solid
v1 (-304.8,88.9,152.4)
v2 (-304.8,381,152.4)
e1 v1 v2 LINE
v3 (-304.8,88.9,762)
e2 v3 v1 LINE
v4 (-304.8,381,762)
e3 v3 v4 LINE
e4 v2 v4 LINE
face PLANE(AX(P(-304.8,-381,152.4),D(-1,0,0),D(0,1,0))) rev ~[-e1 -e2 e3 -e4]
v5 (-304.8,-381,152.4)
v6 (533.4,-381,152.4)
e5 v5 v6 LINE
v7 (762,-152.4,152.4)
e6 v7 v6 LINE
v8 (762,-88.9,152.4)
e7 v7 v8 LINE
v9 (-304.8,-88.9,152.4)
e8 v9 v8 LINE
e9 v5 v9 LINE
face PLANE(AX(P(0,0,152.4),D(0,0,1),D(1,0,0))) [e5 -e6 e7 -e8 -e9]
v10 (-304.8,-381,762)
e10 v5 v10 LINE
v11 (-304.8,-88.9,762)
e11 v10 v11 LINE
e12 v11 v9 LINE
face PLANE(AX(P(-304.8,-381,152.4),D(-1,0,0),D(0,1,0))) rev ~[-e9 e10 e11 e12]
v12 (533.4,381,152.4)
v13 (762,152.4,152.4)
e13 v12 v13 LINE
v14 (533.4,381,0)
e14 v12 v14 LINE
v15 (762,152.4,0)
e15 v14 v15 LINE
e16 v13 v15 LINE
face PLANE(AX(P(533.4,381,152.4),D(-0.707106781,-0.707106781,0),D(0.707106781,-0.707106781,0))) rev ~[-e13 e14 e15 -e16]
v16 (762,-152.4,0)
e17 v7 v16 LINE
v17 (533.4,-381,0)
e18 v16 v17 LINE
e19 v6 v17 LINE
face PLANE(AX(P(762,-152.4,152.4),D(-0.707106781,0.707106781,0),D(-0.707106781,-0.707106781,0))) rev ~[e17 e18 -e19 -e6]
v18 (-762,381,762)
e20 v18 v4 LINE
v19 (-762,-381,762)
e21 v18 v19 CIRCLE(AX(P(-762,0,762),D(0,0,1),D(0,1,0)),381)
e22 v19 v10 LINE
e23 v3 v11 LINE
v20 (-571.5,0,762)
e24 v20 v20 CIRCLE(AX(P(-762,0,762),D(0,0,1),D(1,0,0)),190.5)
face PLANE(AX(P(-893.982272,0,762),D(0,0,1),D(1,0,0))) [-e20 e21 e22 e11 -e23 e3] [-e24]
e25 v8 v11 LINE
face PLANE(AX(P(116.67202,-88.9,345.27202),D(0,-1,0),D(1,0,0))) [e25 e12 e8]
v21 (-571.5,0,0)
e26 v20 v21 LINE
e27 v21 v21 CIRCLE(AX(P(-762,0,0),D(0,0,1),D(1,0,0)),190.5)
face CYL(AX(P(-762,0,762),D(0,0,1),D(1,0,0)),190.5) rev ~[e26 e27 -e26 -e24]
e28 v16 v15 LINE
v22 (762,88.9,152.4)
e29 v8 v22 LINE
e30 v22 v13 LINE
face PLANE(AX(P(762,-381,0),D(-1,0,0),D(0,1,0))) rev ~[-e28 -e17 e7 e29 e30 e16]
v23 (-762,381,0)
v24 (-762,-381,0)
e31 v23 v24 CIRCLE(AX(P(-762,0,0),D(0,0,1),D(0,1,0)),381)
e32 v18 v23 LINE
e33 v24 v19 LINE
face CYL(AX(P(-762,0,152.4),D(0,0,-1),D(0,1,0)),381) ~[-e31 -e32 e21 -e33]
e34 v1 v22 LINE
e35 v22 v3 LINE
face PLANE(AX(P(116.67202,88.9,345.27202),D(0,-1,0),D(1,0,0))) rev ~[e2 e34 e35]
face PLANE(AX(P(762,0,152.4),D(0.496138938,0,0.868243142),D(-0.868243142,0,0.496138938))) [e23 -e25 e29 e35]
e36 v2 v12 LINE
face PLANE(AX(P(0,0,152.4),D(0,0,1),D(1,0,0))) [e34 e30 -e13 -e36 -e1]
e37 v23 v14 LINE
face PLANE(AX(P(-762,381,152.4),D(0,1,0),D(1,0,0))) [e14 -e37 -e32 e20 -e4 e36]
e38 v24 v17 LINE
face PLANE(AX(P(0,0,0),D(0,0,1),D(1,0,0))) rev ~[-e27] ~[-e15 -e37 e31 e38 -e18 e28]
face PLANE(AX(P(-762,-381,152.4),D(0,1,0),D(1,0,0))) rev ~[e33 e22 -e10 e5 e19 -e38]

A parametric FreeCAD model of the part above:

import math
import FreeCAD as App
import Part
import Sketcher

V = App.Vector
Q = App.Units.Quantity

doc = App.newDocument("Part")
body = doc.addObject("PartDesign::Body", "Body")

# Sketch on XY plane
sketch1 = body.newObject("Sketcher::SketchObject", "Sketch")
sketch1.AttachmentSupport = (doc.getObject("XY_Plane"), [""])
sketch1.MapMode = "FlatFace"
sketch1.addGeometry(Part.LineSegment(V(-762, -381, 0), V(762, -381, 0)), False)
sketch1.addGeometry(Part.LineSegment(V(762, -381, 0), V(762, 381, 0)), False)
sketch1.addGeometry(Part.LineSegment(V(762, 381, 0), V(-762, 381, 0)), False)
sketch1.addGeometry(Part.ArcOfCircle(Part.Circle(V(-762, 0, 0), V(0, 0, 1), 381), math.radians(90), math.radians(270)), False)
sketch1.addConstraint(Sketcher.Constraint("Coincident", 0, 2, 1, 1))
sketch1.addConstraint(Sketcher.Constraint("Coincident", 1, 2, 2, 1))
sketch1.addConstraint(Sketcher.Constraint("Tangent", 2, 2, 3, 1))
sketch1.addConstraint(Sketcher.Constraint("Tangent", 3, 2, 0, 1))
sketch1.addConstraint(Sketcher.Constraint("Horizontal", 0))
sketch1.addConstraint(Sketcher.Constraint("Vertical", 1))
sketch1.addConstraint(Sketcher.Constraint("Horizontal", 2))
sketch1.addConstraint(Sketcher.Constraint("Symmetric", 0, 2, 2, 2, -1, 1))
sketch1.addConstraint(Sketcher.Constraint("Radius", 3, Q("15 in")))
sketch1.addConstraint(Sketcher.Constraint("DistanceX", 0, 1, 0, 2, Q("60 in")))
pad1 = body.newObject("PartDesign::Pad", "Pad")
pad1.Profile = sketch1
pad1.Length = Q("6 in")

# Sketch on XY plane
sketch2 = body.newObject("Sketcher::SketchObject", "Sketch001")
sketch2.AttachmentSupport = (doc.getObject("XY_Plane"), [""])
sketch2.MapMode = "FlatFace"
sketch2.AttachmentOffset = App.Placement(V(0, 0, 6 * 25.4), App.Rotation())
sketch2.addGeometry(Part.ArcOfCircle(Part.Circle(V(-762, 0, 0), V(0, 0, 1), 381), math.radians(90), math.radians(270)), False)
sketch2.addGeometry(Part.LineSegment(V(-762, -381, 0), V(-305, -381, 0)), False)
sketch2.addGeometry(Part.LineSegment(V(-305, -381, 0), V(-305, 381, 0)), False)
sketch2.addGeometry(Part.LineSegment(V(-305, 381, 0), V(-762, 381, 0)), False)
sketch2.addConstraint(Sketcher.Constraint("Tangent", 0, 2, 1, 1))
sketch2.addConstraint(Sketcher.Constraint("Coincident", 1, 2, 2, 1))
sketch2.addConstraint(Sketcher.Constraint("Coincident", 2, 2, 3, 1))
sketch2.addConstraint(Sketcher.Constraint("Tangent", 3, 2, 0, 1))
sketch2.addConstraint(Sketcher.Constraint("Horizontal", 1))
sketch2.addConstraint(Sketcher.Constraint("Vertical", 2))
sketch2.addConstraint(Sketcher.Constraint("Horizontal", 3))
sketch2.addConstraint(Sketcher.Constraint("PointOnObject", 0, 3, -1))
sketch2.addConstraint(Sketcher.Constraint("Radius", 0, Q("15 in")))
sketch2.addConstraint(Sketcher.Constraint("DistanceX", 1, 1, 1, 2, Q("18 in")))
sketch2.addConstraint(Sketcher.Constraint("DistanceX", 0, 3, -1, 1, Q("30 in")))
pad2 = body.newObject("PartDesign::Pad", "Pad001")
pad2.Profile = sketch2
pad2.Length = Q("24 in")

# Sketch on XZ plane
sketch3 = body.newObject("Sketcher::SketchObject", "Sketch002")
sketch3.AttachmentSupport = (doc.getObject("XZ_Plane"), [""])
sketch3.MapMode = "FlatFace"
sketch3.addGeometry(Part.LineSegment(V(762, 152, 0), V(-305, 762, 0)), False)
sketch3.addGeometry(Part.LineSegment(V(-305, 762, 0), V(-305, 152, 0)), False)
sketch3.addGeometry(Part.LineSegment(V(-305, 152, 0), V(762, 152, 0)), False)
sketch3.addConstraint(Sketcher.Constraint("Coincident", 0, 2, 1, 1))
sketch3.addConstraint(Sketcher.Constraint("Coincident", 1, 2, 2, 1))
sketch3.addConstraint(Sketcher.Constraint("Coincident", 2, 2, 0, 1))
sketch3.addConstraint(Sketcher.Constraint("Vertical", 1))
sketch3.addConstraint(Sketcher.Constraint("Horizontal", 2))
sketch3.addConstraint(Sketcher.Constraint("DistanceX", 2, 1, 2, 2, Q("42 in")))
sketch3.addConstraint(Sketcher.Constraint("DistanceY", 1, 2, 1, 1, Q("24 in")))
sketch3.addConstraint(Sketcher.Constraint("DistanceX", 0, 2, -1, 1, Q("12 in")))
sketch3.addConstraint(Sketcher.Constraint("DistanceY", -1, 1, 0, 2, Q("30 in")))
pad3 = body.newObject("PartDesign::Pad", "Pad002")
pad3.Profile = sketch3
pad3.Length = Q("7 in")
pad3.Midplane = True

# Sketch on XY plane
sketch4 = body.newObject("Sketcher::SketchObject", "Sketch003")
sketch4.AttachmentSupport = (doc.getObject("XY_Plane"), [""])
sketch4.MapMode = "FlatFace"
sketch4.AttachmentOffset = App.Placement(V(0, 0, 30 * 25.4), App.Rotation())
sketch4.addGeometry(Part.Circle(V(-762, 0, 0), V(0, 0, 1), 190), False)
sketch4.addConstraint(Sketcher.Constraint("PointOnObject", 0, 3, -1))
sketch4.addConstraint(Sketcher.Constraint("Diameter", 0, Q("15 in")))
sketch4.addConstraint(Sketcher.Constraint("DistanceX", 0, 3, -1, 1, Q("30 in")))
pocket1 = body.newObject("PartDesign::Pocket", "Pocket")
pocket1.Profile = sketch4
pocket1.Length = Q("60 in")

# Sketch on XY plane
sketch5 = body.newObject("Sketcher::SketchObject", "Sketch004")
sketch5.AttachmentSupport = (doc.getObject("XY_Plane"), [""])
sketch5.MapMode = "FlatFace"
sketch5.AttachmentOffset = App.Placement(V(0, 0, 6 * 25.4), App.Rotation())
sketch5.addGeometry(Part.LineSegment(V(762, 381, 0), V(533, 381, 0)), False)
sketch5.addGeometry(Part.LineSegment(V(533, 381, 0), V(762, 152, 0)), False)
sketch5.addGeometry(Part.LineSegment(V(762, 152, 0), V(762, 381, 0)), False)
sketch5.addGeometry(Part.LineSegment(V(762, -381, 0), V(762, -152, 0)), False)
sketch5.addGeometry(Part.LineSegment(V(762, -152, 0), V(533, -381, 0)), False)
sketch5.addGeometry(Part.LineSegment(V(533, -381, 0), V(762, -381, 0)), False)
sketch5.addConstraint(Sketcher.Constraint("Coincident", 0, 2, 1, 1))
sketch5.addConstraint(Sketcher.Constraint("Coincident", 1, 2, 2, 1))
sketch5.addConstraint(Sketcher.Constraint("Coincident", 2, 2, 0, 1))
sketch5.addConstraint(Sketcher.Constraint("Coincident", 3, 2, 4, 1))
sketch5.addConstraint(Sketcher.Constraint("Coincident", 4, 2, 5, 1))
sketch5.addConstraint(Sketcher.Constraint("Coincident", 5, 2, 3, 1))
sketch5.addConstraint(Sketcher.Constraint("Horizontal", 0))
sketch5.addConstraint(Sketcher.Constraint("Vertical", 2))
sketch5.addConstraint(Sketcher.Constraint("Vertical", 3))
sketch5.addConstraint(Sketcher.Constraint("Horizontal", 5))
sketch5.addConstraint(Sketcher.Constraint("Symmetric", 1, 2, 3, 2, -1))
sketch5.addConstraint(Sketcher.Constraint("Symmetric", 0, 2, 4, 2, -1))
sketch5.addConstraint(Sketcher.Constraint("Perpendicular", 1, 4))
sketch5.addConstraint(Sketcher.Constraint("DistanceX", 0, 2, 0, 1, Q("9 in")))
sketch5.addConstraint(Sketcher.Constraint("DistanceX", -1, 1, 0, 2, Q("21 in")))
sketch5.addConstraint(Sketcher.Constraint("DistanceY", -1, 1, 0, 2, Q("15 in")))
pocket2 = body.newObject("PartDesign::Pocket", "Pocket001")
pocket2.Profile = sketch5
pocket2.Length = Q("6 in")

doc.recompute()
